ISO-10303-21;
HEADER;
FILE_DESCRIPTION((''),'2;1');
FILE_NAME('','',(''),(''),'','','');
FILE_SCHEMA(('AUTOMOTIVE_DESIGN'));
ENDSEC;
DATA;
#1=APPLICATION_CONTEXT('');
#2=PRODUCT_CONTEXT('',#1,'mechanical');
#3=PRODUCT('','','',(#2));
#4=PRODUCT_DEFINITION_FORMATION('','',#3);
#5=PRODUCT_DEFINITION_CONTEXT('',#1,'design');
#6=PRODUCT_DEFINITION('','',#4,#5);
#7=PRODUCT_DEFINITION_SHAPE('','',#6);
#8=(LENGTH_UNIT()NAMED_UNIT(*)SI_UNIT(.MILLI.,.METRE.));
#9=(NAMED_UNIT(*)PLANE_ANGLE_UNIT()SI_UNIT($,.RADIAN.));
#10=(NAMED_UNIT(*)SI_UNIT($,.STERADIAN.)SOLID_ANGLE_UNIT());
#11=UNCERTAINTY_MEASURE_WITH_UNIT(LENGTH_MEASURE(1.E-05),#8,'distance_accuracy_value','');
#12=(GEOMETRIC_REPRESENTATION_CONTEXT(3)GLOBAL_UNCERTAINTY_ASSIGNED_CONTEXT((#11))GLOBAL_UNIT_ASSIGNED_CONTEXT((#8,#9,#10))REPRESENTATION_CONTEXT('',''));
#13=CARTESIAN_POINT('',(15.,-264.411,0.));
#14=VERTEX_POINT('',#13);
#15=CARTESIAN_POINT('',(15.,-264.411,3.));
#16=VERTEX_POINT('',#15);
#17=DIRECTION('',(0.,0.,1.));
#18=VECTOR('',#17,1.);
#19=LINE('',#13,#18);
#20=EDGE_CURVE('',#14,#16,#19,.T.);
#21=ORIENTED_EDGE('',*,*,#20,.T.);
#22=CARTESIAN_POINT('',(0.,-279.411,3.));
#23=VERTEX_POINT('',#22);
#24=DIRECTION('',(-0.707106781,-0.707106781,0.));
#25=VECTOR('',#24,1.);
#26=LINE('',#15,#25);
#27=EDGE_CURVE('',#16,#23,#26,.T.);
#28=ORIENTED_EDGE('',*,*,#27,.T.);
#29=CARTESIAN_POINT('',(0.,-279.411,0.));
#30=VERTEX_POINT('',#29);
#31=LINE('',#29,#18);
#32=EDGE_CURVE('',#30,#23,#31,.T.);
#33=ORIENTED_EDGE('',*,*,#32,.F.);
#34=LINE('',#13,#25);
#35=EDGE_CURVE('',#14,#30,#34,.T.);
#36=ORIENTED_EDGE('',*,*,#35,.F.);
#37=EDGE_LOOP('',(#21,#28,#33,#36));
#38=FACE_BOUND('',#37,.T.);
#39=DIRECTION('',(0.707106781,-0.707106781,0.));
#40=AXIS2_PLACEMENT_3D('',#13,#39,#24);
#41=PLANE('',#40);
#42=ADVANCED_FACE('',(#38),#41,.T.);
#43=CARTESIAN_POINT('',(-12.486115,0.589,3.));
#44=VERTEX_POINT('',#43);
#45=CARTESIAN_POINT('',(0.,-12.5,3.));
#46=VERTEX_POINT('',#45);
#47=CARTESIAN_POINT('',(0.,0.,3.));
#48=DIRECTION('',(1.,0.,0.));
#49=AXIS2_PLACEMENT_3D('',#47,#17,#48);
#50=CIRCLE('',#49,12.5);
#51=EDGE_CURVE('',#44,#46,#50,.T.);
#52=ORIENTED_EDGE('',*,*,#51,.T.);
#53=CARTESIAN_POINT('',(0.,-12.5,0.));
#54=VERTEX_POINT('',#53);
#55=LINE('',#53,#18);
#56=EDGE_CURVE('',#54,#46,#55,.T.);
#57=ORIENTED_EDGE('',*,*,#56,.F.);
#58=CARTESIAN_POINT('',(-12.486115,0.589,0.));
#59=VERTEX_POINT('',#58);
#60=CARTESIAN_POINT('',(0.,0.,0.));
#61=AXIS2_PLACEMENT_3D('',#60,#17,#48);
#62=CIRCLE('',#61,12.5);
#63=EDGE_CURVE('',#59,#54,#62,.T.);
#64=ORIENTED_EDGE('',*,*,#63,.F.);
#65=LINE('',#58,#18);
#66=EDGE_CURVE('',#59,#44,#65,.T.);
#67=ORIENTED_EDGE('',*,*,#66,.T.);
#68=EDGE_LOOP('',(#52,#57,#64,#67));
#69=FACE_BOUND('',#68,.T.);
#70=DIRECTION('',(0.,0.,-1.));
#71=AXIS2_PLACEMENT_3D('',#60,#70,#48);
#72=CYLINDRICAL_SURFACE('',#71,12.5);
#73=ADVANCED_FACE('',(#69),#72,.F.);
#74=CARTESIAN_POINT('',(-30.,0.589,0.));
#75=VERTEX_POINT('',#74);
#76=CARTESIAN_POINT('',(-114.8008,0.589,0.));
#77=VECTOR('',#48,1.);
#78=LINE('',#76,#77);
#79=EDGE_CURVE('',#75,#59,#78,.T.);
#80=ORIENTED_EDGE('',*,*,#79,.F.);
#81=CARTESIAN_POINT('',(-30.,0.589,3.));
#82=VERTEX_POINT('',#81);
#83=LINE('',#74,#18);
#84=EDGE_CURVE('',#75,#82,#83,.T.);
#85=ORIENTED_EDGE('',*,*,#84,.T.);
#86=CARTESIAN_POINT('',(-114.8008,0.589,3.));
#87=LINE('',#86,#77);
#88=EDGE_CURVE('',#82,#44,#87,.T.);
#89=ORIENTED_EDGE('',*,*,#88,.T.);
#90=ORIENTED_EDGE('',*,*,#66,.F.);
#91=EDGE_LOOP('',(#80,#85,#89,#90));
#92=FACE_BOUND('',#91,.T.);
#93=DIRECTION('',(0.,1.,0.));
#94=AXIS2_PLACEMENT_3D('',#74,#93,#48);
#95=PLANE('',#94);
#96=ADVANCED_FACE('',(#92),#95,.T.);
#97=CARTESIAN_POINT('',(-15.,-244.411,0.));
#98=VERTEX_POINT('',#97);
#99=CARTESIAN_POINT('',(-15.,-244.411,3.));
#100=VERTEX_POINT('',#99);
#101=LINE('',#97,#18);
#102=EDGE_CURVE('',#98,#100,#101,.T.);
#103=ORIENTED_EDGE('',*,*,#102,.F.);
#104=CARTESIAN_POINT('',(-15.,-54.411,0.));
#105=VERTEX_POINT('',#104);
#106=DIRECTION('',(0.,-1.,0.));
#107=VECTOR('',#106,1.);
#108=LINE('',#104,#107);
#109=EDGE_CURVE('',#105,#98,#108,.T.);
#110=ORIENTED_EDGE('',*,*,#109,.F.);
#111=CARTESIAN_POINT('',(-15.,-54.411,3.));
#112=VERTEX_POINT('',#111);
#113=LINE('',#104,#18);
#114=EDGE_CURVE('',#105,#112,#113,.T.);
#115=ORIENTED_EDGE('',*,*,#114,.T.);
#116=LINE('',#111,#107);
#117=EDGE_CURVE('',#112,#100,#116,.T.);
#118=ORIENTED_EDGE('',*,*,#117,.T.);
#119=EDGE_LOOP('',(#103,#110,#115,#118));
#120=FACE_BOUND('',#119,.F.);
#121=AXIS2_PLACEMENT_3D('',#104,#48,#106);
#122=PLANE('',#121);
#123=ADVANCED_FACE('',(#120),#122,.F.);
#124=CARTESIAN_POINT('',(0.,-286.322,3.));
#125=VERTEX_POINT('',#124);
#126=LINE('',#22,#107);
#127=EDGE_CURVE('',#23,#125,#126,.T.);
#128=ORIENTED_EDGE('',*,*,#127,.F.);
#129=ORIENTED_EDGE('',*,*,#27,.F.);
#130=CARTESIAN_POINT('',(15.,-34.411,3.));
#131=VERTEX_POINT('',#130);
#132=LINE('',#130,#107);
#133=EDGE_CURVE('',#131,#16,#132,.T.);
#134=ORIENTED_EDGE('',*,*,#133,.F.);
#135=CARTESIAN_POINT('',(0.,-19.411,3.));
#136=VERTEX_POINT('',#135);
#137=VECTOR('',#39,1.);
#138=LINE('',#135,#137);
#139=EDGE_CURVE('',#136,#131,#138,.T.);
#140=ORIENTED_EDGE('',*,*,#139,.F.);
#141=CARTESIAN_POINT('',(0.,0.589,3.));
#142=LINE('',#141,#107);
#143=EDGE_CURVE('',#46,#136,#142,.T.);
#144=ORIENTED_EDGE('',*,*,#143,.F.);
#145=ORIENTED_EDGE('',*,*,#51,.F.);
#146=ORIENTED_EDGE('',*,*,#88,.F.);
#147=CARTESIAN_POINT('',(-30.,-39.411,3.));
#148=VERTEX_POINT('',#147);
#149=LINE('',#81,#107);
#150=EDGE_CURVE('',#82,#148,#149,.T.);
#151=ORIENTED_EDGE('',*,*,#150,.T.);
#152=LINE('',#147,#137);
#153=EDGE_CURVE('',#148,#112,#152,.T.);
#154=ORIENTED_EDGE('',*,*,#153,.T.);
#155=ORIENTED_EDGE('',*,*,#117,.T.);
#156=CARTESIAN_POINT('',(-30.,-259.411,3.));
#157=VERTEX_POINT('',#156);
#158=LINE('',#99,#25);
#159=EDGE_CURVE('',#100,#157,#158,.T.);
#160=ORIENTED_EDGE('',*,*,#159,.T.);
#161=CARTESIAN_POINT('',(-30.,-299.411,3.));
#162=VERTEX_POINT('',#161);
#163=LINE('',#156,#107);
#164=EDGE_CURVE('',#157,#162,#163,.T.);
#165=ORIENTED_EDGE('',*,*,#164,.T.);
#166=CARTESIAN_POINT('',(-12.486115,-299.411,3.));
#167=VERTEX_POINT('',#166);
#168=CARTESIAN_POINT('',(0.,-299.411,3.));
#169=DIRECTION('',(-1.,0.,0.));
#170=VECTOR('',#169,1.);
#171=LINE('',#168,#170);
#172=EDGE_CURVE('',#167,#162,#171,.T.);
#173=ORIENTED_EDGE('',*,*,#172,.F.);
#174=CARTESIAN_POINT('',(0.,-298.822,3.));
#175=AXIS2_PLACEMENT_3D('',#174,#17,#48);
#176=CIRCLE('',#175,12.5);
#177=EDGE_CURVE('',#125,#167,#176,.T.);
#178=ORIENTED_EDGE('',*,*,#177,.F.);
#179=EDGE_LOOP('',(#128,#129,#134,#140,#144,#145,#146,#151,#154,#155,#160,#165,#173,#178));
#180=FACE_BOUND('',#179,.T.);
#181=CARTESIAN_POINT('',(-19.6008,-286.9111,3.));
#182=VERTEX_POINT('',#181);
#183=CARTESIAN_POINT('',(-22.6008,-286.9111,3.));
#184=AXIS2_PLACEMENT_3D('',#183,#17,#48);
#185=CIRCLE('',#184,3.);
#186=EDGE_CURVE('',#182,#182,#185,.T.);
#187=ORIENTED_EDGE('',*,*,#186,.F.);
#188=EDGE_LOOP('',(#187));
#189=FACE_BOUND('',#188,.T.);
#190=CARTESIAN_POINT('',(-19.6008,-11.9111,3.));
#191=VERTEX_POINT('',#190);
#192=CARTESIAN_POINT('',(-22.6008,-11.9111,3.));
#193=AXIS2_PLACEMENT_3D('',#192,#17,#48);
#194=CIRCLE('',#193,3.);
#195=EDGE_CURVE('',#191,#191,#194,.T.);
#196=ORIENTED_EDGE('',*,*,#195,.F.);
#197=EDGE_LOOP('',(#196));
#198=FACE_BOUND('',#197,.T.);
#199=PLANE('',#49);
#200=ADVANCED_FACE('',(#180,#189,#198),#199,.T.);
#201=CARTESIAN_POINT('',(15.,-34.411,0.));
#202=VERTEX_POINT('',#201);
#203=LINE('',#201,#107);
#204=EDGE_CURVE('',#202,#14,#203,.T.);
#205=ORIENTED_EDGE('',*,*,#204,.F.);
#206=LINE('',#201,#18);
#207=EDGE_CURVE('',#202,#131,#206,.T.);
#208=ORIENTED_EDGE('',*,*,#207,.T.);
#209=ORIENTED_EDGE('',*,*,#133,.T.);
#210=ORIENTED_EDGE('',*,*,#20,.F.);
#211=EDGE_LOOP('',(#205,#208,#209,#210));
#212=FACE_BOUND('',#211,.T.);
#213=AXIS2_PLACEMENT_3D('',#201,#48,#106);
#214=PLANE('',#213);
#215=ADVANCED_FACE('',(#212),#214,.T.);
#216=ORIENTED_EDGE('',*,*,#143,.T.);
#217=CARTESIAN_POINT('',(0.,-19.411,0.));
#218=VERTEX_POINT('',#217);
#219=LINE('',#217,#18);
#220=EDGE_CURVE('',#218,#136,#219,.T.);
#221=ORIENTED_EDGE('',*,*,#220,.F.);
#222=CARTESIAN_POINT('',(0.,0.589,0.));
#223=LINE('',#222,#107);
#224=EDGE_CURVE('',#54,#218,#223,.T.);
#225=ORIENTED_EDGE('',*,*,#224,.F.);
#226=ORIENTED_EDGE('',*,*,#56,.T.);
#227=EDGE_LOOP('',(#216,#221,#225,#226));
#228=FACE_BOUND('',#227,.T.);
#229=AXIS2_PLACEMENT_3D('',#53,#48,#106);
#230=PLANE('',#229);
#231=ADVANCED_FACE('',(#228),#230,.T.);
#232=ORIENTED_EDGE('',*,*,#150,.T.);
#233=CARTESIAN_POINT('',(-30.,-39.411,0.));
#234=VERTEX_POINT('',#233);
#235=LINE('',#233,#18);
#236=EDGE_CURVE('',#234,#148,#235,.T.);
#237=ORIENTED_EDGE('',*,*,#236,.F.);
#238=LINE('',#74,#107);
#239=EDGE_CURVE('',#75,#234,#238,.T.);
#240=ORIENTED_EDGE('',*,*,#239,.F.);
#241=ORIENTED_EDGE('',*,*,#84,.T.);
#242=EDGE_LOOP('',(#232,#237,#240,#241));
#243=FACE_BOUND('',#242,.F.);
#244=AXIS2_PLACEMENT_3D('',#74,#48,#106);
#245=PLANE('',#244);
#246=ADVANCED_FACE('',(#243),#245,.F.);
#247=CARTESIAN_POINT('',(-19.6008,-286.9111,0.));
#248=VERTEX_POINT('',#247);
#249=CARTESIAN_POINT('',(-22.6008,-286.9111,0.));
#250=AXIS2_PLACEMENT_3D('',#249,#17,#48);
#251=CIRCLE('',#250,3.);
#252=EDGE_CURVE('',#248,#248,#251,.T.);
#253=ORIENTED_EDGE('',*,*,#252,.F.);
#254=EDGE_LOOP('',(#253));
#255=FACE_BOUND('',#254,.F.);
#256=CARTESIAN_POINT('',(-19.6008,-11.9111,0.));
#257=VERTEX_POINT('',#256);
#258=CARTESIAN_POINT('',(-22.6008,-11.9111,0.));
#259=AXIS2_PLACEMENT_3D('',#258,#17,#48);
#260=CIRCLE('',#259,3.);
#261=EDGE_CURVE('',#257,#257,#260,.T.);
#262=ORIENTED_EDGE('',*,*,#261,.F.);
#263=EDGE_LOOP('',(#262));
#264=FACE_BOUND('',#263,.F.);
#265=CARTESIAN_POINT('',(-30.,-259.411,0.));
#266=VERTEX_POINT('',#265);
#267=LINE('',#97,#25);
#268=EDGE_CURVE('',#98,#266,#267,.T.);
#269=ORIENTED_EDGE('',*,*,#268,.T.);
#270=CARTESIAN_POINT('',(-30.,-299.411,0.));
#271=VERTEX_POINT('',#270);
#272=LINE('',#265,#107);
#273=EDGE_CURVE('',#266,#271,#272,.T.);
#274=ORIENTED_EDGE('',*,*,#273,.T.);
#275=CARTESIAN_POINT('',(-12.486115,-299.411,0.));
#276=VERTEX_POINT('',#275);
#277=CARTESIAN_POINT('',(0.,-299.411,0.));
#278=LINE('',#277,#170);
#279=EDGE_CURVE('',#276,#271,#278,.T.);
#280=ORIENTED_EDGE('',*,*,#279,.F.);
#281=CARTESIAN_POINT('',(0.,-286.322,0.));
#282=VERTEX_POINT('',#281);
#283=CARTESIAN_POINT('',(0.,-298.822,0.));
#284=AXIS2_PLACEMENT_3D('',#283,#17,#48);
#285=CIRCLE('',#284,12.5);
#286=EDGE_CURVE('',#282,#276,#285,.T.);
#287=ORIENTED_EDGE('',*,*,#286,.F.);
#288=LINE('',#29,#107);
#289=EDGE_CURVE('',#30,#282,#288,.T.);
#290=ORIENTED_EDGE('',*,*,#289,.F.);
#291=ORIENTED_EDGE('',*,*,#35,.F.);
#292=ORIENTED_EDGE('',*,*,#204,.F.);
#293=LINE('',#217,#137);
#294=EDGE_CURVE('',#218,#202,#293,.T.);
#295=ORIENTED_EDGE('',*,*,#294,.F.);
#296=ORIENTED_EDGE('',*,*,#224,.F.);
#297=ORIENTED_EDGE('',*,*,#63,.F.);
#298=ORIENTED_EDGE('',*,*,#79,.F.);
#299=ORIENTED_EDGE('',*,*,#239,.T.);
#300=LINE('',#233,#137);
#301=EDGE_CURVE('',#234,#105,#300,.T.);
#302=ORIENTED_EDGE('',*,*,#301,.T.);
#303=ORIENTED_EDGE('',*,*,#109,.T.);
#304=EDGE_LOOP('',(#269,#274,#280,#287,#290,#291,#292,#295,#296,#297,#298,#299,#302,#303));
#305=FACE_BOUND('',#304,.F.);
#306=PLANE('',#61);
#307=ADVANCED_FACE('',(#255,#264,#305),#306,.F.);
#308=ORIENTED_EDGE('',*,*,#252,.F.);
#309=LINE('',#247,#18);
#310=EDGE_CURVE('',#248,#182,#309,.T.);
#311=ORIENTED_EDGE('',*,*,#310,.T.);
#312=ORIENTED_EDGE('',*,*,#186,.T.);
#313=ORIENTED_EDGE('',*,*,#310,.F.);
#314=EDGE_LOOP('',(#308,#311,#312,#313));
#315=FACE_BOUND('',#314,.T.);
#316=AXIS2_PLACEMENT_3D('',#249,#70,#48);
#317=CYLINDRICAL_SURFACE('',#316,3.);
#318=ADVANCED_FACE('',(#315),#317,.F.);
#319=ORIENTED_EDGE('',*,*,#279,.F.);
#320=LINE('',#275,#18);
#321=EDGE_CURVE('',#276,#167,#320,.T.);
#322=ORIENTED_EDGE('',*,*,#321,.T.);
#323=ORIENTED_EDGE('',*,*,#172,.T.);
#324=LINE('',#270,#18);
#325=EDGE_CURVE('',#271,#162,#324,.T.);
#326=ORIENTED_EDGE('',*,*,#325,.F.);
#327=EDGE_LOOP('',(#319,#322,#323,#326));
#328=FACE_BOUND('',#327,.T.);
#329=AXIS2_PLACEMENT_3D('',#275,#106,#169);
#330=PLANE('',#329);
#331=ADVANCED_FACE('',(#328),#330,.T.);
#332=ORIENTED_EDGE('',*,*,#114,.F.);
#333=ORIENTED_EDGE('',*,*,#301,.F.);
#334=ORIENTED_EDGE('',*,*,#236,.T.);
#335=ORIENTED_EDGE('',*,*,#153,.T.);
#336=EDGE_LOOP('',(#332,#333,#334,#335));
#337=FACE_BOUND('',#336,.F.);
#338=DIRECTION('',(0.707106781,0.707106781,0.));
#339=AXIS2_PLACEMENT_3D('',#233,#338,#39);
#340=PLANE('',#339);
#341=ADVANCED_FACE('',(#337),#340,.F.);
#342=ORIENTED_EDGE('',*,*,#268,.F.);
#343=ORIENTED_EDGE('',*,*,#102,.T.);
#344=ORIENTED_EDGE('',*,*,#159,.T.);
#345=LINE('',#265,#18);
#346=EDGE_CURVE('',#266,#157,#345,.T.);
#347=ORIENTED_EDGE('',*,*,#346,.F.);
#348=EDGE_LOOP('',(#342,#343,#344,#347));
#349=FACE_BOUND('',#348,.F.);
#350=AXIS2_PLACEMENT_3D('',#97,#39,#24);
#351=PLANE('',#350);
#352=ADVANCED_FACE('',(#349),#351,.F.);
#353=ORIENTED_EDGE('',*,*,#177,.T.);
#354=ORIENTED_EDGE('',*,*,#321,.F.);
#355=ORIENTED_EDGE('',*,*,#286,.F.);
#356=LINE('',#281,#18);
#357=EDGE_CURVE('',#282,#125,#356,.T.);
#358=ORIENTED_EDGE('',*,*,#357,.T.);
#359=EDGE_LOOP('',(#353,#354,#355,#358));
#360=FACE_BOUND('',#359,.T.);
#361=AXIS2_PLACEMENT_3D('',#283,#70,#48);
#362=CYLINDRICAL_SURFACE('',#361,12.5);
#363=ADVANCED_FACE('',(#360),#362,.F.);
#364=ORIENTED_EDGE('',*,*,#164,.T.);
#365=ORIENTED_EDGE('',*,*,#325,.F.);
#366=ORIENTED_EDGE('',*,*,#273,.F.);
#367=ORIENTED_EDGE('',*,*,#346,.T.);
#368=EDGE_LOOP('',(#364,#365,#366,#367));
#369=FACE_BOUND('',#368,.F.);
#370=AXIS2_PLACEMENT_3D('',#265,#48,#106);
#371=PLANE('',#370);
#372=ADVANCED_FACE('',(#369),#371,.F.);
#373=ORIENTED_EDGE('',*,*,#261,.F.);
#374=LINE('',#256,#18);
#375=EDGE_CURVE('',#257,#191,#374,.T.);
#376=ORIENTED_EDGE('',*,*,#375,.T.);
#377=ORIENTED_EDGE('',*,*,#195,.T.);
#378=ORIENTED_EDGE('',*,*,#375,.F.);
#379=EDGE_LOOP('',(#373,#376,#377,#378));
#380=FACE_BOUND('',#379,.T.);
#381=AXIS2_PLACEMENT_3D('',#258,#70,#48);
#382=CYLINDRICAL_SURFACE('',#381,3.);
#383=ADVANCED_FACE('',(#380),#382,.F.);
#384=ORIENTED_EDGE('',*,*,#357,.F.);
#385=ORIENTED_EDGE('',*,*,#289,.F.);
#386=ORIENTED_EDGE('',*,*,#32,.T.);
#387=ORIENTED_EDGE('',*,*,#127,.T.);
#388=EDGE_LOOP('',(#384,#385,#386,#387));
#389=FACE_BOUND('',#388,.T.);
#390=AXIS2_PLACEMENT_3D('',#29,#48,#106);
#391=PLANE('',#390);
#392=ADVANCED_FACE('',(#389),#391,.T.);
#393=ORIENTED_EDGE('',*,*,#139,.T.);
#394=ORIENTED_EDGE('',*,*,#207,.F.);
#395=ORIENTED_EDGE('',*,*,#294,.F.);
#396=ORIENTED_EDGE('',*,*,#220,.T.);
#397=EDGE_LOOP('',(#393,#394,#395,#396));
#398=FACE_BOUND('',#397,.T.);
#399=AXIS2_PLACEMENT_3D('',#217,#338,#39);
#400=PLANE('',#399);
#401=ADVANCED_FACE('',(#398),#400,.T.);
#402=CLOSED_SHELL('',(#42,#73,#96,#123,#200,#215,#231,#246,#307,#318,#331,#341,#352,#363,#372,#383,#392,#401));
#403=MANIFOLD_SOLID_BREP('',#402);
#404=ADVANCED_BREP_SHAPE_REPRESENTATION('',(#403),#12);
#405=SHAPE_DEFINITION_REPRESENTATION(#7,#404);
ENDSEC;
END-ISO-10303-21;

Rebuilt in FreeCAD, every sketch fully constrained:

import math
import FreeCAD as App
import Part
import Sketcher

V = App.Vector
Q = App.Units.Quantity

doc = App.newDocument("Part")
body = doc.addObject("PartDesign::Body", "Body")

# Sketch on XY plane
sketch1 = body.newObject("Sketcher::SketchObject", "Sketch")
sketch1.AttachmentSupport = (doc.getObject("XY_Plane"), [""])
sketch1.MapMode = "FlatFace"
sketch1.addGeometry([
    Part.ArcOfCircle(Part.Circle(V(0, 0, 0), V(0, 0, 1), 12.5), math.radians(177), math.radians(270)),  # 0
    Part.LineSegment(V(-12.5, 0.6, 0), V(-30, 0.6, 0)),  # 1
    Part.LineSegment(V(-30, 0.6, 0), V(-30, -39.4, 0)),  # 2
    Part.LineSegment(V(-30, -39.4, 0), V(-15, -54.4, 0)),  # 3
    Part.LineSegment(V(-15, -54.4, 0), V(-15, -244.4, 0)),  # 4
    Part.LineSegment(V(-15, -244.4, 0), V(-30, -259.4, 0)),  # 5
    Part.LineSegment(V(-30, -259.4, 0), V(-30, -299.4, 0)),  # 6
    Part.LineSegment(V(-30, -299.4, 0), V(-12.5, -299.4, 0)),  # 7
    Part.ArcOfCircle(Part.Circle(V(0, -298.8, 0), V(0, 0, 1), 12.5), math.radians(90), math.radians(183)),  # 8
    Part.LineSegment(V(0, -286.3, 0), V(0, -279.4, 0)),  # 9
    Part.LineSegment(V(0, -279.4, 0), V(15, -264.4, 0)),  # 10
    Part.LineSegment(V(15, -264.4, 0), V(15, -34.4, 0)),  # 11
    Part.LineSegment(V(15, -34.4, 0), V(0, -19.4, 0)),  # 12
    Part.LineSegment(V(0, -19.4, 0), V(0, -12.5, 0)),  # 13
    Part.Circle(V(-22.6, -286.9, 0), V(0, 0, 1), 3),  # 14
    Part.Circle(V(-22.6, -11.9, 0), V(0, 0, 1), 3),  # 15
], False)
sketch1.addConstraint([
    Sketcher.Constraint("Coincident", 0, 1, 1, 1),
    Sketcher.Constraint("Coincident", 1, 2, 2, 1),
    Sketcher.Constraint("Coincident", 2, 2, 3, 1),
    Sketcher.Constraint("Coincident", 3, 2, 4, 1),
    Sketcher.Constraint("Coincident", 4, 2, 5, 1),
    Sketcher.Constraint("Coincident", 5, 2, 6, 1),
    Sketcher.Constraint("Coincident", 6, 2, 7, 1),
    Sketcher.Constraint("Coincident", 7, 2, 8, 2),
    Sketcher.Constraint("Coincident", 8, 1, 9, 1),
    Sketcher.Constraint("Coincident", 9, 2, 10, 1),
    Sketcher.Constraint("Coincident", 10, 2, 11, 1),
    Sketcher.Constraint("Coincident", 11, 2, 12, 1),
    Sketcher.Constraint("Coincident", 12, 2, 13, 1),
    Sketcher.Constraint("Coincident", 13, 2, 0, 2),
    Sketcher.Constraint("Horizontal", 1),
    Sketcher.Constraint("Vertical", 2),
    Sketcher.Constraint("Vertical", 4),
    Sketcher.Constraint("Vertical", 6),
    Sketcher.Constraint("Horizontal", 7),
    Sketcher.Constraint("Vertical", 9),
    Sketcher.Constraint("Vertical", 11),
    Sketcher.Constraint("Vertical", 13),
    Sketcher.Constraint("Coincident", 0, 3, -1, 1),
    Sketcher.Constraint("Equal", 0, 8),
    Sketcher.Constraint("Equal", 14, 15),
    Sketcher.Constraint("PointOnObject", 8, 3, -2),
    Sketcher.Constraint("PointOnObject", 8, 1, -2),
    Sketcher.Constraint("PointOnObject", 12, 2, -2),
    Sketcher.Constraint("Perpendicular", 3, 5),
    Sketcher.Constraint("Parallel", 5, 10),
    Sketcher.Constraint("Perpendicular", 10, 12),
    Sketcher.Constraint("Vertical", 14, 3, 15, 3),
    Sketcher.Constraint("Vertical", 2, 2, 5, 2),
    Sketcher.Constraint("Vertical", 0, 1, 7, 2),
    Sketcher.Constraint("Equal", 2, 6),
    Sketcher.Constraint("Equal", 9, 13),
    Sketcher.Constraint("Equal", 3, 5),
    Sketcher.Constraint("Equal", 5, 10),
    Sketcher.Constraint("Diameter", 14, Q("6 mm")),
    Sketcher.Constraint("Radius", 0, Q("12.5 mm")),
    Sketcher.Constraint("DistanceY", 2, 2, 2, 1, Q("40 mm")),
    Sketcher.Constraint("DistanceX", 1, 2, -1, 1, Q("30 mm")),
    Sketcher.Constraint("DistanceX", 3, 2, -1, 1, Q("15 mm")),
    Sketcher.Constraint("DistanceY", 7, 2, 9, 2, Q("20 mm")),
    Sketcher.Constraint("DistanceY", 4, 2, 4, 1, Q("190 mm")),
    Sketcher.Constraint("DistanceY", 8, 3, -1, 1, Q("298.822 mm")),
    Sketcher.Constraint("DistanceY", 14, 3, 15, 3, Q("275 mm")),
    Sketcher.Constraint("DistanceY", 15, 3, 0, 1, Q("12.5 mm")),
    Sketcher.Constraint("DistanceX", 14, 3, -1, 1, Q("22.6008 mm")),
])
pad1 = body.newObject("PartDesign::Pad", "Pad")
pad1.Profile = sketch1
pad1.Length = 3

doc.recompute()
